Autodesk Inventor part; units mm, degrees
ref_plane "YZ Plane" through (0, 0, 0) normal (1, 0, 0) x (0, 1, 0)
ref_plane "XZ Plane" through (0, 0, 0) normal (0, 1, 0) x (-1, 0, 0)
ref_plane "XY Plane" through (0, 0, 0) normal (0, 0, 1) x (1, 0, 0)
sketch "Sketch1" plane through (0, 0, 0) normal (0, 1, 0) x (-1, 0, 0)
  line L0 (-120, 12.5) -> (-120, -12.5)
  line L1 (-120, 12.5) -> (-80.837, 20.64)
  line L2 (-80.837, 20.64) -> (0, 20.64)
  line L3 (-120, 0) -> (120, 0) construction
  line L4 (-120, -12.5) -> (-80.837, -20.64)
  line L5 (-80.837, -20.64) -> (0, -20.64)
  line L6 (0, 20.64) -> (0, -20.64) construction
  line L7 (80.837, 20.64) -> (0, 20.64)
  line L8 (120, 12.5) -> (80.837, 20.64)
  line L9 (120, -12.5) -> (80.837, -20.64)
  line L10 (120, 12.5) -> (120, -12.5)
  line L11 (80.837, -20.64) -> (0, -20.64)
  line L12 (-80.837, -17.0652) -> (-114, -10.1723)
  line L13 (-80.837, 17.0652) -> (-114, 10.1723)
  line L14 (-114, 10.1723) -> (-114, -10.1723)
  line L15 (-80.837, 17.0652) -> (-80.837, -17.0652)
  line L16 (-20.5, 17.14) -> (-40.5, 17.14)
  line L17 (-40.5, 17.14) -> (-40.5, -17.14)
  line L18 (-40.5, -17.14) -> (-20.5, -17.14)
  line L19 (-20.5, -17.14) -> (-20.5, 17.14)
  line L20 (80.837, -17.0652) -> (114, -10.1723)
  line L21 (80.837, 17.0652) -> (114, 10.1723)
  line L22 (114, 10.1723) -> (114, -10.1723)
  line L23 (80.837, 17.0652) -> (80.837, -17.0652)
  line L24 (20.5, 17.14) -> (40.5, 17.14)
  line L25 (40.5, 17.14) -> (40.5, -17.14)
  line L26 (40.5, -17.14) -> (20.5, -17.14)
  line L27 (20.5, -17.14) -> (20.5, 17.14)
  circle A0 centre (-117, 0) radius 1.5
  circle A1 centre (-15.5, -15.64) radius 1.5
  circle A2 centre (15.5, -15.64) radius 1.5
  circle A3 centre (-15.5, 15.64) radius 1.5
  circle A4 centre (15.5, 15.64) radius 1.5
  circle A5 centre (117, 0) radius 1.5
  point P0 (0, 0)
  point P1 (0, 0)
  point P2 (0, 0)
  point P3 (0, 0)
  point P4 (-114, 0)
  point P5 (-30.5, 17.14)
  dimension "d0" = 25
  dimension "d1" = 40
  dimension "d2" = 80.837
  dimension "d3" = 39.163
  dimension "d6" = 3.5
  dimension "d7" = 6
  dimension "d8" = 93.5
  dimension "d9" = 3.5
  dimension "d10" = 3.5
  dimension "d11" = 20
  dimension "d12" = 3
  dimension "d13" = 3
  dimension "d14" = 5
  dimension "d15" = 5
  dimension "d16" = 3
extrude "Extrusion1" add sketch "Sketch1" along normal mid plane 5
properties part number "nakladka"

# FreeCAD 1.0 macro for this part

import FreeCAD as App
import Part
import Sketcher

V = App.Vector
Q = App.Units.Quantity


def add_polygon(sketch, points):
    """Adds a closed chain of lines whose ends are joined by coincident constraints."""
    first, n = sketch.GeometryCount, len(points)
    for a, b in zip(points, points[1:] + points[:1]):
        sketch.addGeometry(Part.LineSegment(App.Vector(*a, 0), App.Vector(*b, 0)), False)
    for i in range(n):
        sketch.addConstraint(Sketcher.Constraint("Coincident", first + i, 2, first + (i + 1) % n, 1))

doc = App.newDocument("Part")
body = doc.addObject("PartDesign::Body", "Body")

sketch1 = body.newObject("Sketcher::SketchObject", "Sketch")
sketch1.AttachmentSupport = (doc.getObject("XZ_Plane"), [""])
sketch1.MapMode = "FlatFace"
add_polygon(sketch1, [(80.837, 20.64), (120, 12.5), (120, -12.5), (80.837, -20.64), (-80.837, -20.64), (-120, -12.5), (-120, 12.5), (-80.837, 20.64)])
sketch1.addGeometry(Part.Circle(V(15.5, -15.64, 0), V(0, 0, 1), 1.5), False)
sketch1.addGeometry(Part.Circle(V(117, 0, 0), V(0, 0, 1), 1.5), False)
add_polygon(sketch1, [(80.837, 17.0652), (80.837, -17.0652), (114, -10.1723), (114, 10.1723)])
add_polygon(sketch1, [(40.5, 17.14), (20.5, 17.14), (20.5, -17.14), (40.5, -17.14)])
sketch1.addGeometry(Part.Circle(V(-15.5, -15.64, 0), V(0, 0, 1), 1.5), False)
add_polygon(sketch1, [(-20.5, -17.14), (-20.5, 17.14), (-40.5, 17.14), (-40.5, -17.14)])
add_polygon(sketch1, [(-114, -10.1723), (-80.837, -17.0652), (-80.837, 17.0652), (-114, 10.1723)])
sketch1.addGeometry(Part.Circle(V(-117, 0, 0), V(0, 0, 1), 1.5), False)
sketch1.addGeometry(Part.Circle(V(15.5, 15.64, 0), V(0, 0, 1), 1.5), False)
sketch1.addGeometry(Part.Circle(V(-15.5, 15.64, 0), V(0, 0, 1), 1.5), False)
sketch1.addConstraint([
    Sketcher.Constraint("Vertical", 1),
    Sketcher.Constraint("Horizontal", 3),
    Sketcher.Constraint("Vertical", 5),
    Sketcher.Constraint("Horizontal", 7),
    Sketcher.Constraint("Vertical", 10),
    Sketcher.Constraint("Vertical", 12),
    Sketcher.Constraint("Horizontal", 14),
    Sketcher.Constraint("Vertical", 15),
    Sketcher.Constraint("Horizontal", 16),
    Sketcher.Constraint("Vertical", 17),
    Sketcher.Constraint("Vertical", 19),
    Sketcher.Constraint("Horizontal", 20),
    Sketcher.Constraint("Vertical", 21),
    Sketcher.Constraint("Horizontal", 22),
    Sketcher.Constraint("Vertical", 24),
    Sketcher.Constraint("Vertical", 26),
    Sketcher.Constraint("Equal", 8, 9),
    Sketcher.Constraint("Equal", 9, 18),
    Sketcher.Constraint("Equal", 18, 27),
    Sketcher.Constraint("Equal", 27, 28),
    Sketcher.Constraint("Equal", 28, 29),
    Sketcher.Constraint("Symmetric", 9, 3, 27, 3, -1, 1),
    Sketcher.Constraint("Symmetric", 18, 3, 28, 3, -1, 1),
    Sketcher.Constraint("Symmetric", 8, 3, 29, 3, -1, 1),
    Sketcher.Constraint("Symmetric", 0, 2, 4, 2, -1, 1),
    Sketcher.Constraint("Symmetric", 2, 2, 6, 2, -1, 1),
    Sketcher.Constraint("Symmetric", 15, 2, 19, 2, -1, 1),
    Sketcher.Constraint("Symmetric", 17, 2, 21, 2, -1, 1),
    Sketcher.Constraint("Symmetric", 13, 2, 23, 2, -1, 1),
    Sketcher.Constraint("Symmetric", 11, 2, 25, 2, -1, 1),
    Sketcher.Constraint("Symmetric", 8, 3, 18, 3, -2),
    Sketcher.Constraint("PointOnObject", 9, 3, -1),
    Sketcher.Constraint("Parallel", 0, 4),
    Sketcher.Constraint("Parallel", 2, 6),
    Sketcher.Constraint("Parallel", 6, 11),
    Sketcher.Constraint("Parallel", 4, 13),
    Sketcher.Constraint("Parallel", 13, 23),
    Sketcher.Constraint("Parallel", 11, 25),
    Sketcher.Constraint("Horizontal", 1, 2, 4, 2),
    Sketcher.Constraint("Horizontal", 17, 2, 19, 2),
    Sketcher.Constraint("Horizontal", 10, 2, 23, 2),
    Sketcher.Constraint("Horizontal", 12, 2, 25, 2),
    Sketcher.Constraint("Vertical", 7, 2, 10, 2),
    Sketcher.Constraint("Diameter", 8, Q("3 mm")),
    Sketcher.Constraint("DistanceX", 14, 2, 14, 1, Q("20 mm")),
    Sketcher.Constraint("DistanceY", 1, 2, 1, 1, Q("25 mm")),
    Sketcher.Constraint("Distance", 0, Q("40 mm")),
    Sketcher.Constraint("DistanceX", 9, 3, 0, 2, Q("3 mm")),
    Sketcher.Constraint("DistanceY", 2, 2, 8, 3, Q("5 mm")),
    Sketcher.Constraint("DistanceX", 11, 2, 1, 2, Q("6 mm")),
    Sketcher.Constraint("DistanceX", 28, 3, 14, 2, Q("5 mm")),
    Sketcher.Constraint("DistanceY", 2, 2, 16, 2, Q("3.5 mm")),
    Sketcher.Constraint("DistanceX", -1, 1, 9, 3, Q("117 mm")),
    Sketcher.Constraint("DistanceX", -1, 1, 2, 2, Q("80.837 mm")),
    Sketcher.Constraint("DistanceX", 18, 3, 8, 3, Q("31 mm")),
    Sketcher.Constraint("DistanceY", 10, 2, 10, 1, Q("34.1304 mm")),
])
pad1 = body.newObject("PartDesign::Pad", "Pad")
pad1.Profile = sketch1
pad1.Length = 5
pad1.Midplane = True

doc.recompute()
